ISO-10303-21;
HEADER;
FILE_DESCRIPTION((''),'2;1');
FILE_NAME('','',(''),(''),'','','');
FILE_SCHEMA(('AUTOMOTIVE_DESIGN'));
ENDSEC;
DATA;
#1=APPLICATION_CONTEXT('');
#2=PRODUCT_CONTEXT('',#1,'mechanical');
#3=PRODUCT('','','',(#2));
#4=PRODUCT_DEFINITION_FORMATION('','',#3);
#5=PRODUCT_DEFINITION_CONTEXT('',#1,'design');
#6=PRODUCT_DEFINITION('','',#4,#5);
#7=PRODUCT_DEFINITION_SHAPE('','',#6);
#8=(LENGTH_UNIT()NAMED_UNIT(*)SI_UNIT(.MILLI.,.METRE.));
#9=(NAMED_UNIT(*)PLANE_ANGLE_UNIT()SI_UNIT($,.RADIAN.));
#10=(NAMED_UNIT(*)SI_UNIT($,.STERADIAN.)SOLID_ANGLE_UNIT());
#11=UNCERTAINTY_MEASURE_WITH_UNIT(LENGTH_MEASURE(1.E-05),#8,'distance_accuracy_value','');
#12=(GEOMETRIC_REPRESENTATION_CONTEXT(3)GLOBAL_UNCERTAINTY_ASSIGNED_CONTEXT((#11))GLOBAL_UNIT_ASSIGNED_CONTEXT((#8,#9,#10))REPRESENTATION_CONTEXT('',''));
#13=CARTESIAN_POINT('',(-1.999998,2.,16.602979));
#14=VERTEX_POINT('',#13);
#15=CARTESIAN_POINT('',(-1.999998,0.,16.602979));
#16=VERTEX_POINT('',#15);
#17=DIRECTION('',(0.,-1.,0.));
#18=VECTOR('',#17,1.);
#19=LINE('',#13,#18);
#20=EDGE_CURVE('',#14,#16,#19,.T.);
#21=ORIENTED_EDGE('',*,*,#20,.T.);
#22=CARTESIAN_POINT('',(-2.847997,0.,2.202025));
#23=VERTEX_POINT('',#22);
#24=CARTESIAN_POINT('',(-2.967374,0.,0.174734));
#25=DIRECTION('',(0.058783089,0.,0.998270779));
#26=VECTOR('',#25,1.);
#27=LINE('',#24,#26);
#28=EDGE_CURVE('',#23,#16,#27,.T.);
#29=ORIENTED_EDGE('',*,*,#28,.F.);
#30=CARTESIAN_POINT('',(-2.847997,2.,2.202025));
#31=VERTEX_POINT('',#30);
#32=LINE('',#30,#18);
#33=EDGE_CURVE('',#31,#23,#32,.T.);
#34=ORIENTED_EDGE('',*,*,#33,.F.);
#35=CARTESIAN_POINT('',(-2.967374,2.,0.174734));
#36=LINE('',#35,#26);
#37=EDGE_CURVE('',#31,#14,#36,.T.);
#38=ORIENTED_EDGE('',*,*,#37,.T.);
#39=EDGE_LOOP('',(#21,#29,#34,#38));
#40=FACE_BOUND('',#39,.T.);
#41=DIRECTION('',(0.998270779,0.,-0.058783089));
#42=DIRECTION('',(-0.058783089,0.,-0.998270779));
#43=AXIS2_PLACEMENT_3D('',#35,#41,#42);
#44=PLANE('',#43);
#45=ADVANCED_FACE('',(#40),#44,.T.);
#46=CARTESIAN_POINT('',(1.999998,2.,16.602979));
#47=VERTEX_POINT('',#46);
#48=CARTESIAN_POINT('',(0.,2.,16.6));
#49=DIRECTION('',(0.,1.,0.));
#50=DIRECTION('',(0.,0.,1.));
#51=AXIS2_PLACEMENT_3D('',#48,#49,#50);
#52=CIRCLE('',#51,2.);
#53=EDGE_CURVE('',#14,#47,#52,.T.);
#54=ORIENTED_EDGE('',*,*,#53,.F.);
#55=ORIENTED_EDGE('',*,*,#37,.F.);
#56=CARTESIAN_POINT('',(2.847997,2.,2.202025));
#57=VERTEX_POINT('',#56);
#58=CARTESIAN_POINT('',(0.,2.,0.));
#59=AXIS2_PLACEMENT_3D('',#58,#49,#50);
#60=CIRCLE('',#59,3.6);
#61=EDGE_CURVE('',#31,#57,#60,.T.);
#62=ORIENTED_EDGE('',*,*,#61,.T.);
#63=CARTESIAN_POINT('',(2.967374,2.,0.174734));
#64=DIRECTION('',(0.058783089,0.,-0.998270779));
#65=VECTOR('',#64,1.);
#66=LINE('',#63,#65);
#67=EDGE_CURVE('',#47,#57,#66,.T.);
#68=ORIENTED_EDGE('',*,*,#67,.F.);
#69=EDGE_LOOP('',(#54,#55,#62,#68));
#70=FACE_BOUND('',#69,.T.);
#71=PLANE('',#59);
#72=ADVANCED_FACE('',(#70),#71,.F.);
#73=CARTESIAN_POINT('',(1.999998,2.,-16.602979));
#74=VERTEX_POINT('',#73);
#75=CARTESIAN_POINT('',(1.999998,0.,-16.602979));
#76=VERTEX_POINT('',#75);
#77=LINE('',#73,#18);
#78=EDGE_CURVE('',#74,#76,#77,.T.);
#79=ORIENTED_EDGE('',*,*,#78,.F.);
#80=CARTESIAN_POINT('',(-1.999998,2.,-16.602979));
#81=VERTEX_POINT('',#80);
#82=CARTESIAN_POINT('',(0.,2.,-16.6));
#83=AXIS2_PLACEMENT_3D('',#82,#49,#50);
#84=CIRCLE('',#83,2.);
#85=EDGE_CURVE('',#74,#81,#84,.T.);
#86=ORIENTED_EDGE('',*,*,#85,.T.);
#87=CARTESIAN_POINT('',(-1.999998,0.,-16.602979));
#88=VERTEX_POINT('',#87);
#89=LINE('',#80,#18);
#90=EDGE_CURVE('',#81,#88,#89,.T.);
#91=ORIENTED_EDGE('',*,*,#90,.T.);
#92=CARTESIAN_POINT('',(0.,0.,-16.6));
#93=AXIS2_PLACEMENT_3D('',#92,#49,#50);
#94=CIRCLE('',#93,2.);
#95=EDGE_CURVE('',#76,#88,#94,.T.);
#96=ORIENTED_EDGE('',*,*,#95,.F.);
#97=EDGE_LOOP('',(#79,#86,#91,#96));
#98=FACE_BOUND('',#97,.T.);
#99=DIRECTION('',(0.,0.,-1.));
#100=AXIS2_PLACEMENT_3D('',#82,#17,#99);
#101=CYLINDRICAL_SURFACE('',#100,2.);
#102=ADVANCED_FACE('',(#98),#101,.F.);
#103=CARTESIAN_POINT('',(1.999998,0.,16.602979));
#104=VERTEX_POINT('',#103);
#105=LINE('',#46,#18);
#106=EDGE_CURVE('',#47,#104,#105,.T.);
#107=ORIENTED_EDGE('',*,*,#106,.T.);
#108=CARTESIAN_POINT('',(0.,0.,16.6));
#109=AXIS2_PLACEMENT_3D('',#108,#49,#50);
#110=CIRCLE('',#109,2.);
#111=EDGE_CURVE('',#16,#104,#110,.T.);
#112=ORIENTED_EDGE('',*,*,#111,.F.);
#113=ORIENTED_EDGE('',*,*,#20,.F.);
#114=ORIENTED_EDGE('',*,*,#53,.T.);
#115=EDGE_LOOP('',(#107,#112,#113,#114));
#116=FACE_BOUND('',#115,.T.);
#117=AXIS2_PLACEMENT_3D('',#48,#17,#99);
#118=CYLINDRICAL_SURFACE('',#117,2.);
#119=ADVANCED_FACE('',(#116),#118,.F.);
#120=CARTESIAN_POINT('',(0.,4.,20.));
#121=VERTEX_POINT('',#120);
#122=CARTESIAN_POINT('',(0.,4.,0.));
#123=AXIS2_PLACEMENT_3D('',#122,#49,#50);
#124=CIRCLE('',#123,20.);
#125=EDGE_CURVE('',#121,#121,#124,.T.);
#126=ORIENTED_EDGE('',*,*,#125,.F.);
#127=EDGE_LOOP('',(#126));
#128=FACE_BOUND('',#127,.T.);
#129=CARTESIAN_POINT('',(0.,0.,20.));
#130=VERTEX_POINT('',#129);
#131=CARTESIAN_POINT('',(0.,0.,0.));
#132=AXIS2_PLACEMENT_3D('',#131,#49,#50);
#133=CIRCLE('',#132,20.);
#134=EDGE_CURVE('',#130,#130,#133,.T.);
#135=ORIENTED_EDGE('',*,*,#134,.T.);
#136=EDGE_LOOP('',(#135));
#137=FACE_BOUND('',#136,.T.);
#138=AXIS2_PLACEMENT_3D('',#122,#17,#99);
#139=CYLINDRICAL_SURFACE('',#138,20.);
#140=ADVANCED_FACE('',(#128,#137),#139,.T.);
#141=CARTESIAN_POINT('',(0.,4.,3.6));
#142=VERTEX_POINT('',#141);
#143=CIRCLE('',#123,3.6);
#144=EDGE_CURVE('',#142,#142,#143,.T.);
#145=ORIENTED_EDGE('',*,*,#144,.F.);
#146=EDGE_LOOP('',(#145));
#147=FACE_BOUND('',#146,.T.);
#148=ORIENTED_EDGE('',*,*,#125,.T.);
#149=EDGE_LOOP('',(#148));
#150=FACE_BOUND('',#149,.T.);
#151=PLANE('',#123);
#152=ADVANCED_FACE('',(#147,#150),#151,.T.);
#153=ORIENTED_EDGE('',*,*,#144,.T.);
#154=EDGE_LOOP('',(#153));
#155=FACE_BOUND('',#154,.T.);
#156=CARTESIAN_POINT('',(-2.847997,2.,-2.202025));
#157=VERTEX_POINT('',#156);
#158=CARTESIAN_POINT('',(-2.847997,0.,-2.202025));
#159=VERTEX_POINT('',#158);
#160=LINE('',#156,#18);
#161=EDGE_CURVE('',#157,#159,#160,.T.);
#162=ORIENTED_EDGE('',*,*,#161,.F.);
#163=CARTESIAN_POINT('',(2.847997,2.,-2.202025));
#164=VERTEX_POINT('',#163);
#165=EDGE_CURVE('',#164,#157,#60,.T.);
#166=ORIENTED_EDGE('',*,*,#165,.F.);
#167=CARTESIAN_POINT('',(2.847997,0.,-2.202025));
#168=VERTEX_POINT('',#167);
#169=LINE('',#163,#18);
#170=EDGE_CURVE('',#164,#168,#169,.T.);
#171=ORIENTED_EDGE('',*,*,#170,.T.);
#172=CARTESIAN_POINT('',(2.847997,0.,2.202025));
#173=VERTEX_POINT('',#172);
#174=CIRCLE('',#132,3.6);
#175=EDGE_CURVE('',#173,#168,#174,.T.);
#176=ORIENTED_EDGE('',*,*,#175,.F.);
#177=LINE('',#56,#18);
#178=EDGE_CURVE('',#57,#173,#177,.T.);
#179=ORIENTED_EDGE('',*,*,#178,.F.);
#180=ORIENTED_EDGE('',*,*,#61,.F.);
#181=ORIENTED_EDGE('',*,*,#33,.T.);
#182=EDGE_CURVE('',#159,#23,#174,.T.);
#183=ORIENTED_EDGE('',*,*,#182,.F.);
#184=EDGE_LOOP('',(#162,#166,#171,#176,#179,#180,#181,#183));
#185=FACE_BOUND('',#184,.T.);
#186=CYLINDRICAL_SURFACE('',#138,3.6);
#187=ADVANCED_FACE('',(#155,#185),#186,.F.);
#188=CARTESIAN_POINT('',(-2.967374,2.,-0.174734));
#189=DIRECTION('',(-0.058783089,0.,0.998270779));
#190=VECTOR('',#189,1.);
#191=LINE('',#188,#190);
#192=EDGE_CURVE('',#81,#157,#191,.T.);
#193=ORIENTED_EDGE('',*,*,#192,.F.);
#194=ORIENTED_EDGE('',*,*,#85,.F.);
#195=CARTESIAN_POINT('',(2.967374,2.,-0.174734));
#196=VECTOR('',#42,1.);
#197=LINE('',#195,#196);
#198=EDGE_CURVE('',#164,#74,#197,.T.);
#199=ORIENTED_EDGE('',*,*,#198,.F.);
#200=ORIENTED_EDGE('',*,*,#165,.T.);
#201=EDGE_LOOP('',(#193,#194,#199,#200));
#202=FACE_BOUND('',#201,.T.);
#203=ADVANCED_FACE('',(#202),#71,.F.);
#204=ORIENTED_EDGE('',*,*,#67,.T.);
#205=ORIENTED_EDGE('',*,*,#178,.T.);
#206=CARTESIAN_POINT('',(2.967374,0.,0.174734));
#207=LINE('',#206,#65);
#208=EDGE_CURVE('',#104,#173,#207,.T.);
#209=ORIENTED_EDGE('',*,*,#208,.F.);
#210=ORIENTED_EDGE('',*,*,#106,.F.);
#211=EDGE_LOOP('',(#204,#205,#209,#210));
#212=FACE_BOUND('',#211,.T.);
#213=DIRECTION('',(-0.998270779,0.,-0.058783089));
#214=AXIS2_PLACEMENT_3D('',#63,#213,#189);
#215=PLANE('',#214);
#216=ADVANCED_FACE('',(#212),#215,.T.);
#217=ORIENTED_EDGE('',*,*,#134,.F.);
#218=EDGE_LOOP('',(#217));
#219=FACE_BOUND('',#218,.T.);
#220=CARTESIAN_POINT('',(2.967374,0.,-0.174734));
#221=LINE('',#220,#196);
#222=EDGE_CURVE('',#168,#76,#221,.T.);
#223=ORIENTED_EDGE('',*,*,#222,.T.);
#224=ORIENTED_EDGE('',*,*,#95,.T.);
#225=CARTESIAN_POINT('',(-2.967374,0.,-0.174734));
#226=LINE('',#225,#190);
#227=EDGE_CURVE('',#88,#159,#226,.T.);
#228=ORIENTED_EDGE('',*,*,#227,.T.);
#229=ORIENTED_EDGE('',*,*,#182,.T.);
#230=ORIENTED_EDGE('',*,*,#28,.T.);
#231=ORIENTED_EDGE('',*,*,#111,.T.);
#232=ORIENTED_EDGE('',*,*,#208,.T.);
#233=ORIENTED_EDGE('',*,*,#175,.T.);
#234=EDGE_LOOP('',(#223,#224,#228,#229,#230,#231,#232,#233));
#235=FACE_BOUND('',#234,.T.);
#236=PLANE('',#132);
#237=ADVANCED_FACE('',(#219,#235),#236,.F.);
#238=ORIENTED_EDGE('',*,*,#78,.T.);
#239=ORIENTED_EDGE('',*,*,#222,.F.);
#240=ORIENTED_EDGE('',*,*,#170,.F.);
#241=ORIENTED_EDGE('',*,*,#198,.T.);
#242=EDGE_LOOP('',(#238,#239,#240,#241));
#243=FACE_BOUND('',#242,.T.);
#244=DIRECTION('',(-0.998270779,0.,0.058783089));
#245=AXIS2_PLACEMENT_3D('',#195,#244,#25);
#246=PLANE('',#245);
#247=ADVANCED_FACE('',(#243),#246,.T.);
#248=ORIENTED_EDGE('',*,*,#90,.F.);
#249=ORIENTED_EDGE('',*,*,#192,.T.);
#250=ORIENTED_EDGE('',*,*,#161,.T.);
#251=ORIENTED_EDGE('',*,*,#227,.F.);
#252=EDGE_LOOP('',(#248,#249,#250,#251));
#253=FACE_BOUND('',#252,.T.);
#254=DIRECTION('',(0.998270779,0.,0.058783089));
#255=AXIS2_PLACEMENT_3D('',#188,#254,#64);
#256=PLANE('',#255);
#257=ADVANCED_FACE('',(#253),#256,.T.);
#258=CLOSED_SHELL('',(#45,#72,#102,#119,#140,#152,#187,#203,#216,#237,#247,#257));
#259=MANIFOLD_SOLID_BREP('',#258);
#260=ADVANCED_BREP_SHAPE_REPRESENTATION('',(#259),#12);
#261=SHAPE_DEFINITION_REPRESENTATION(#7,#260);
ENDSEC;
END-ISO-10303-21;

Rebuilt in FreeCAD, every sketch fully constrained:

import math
import FreeCAD as App
import Part
import Sketcher

V = App.Vector
Q = App.Units.Quantity

doc = App.newDocument("Part")
body = doc.addObject("PartDesign::Body", "Body")

# Sketch on XZ plane
sketch1 = doc.addObject("Sketcher::SketchObject", "Sketch")
body.addObject(sketch1)
sketch1.AttachmentSupport = (doc.XZ_Plane, [""])
sketch1.MapMode = "FlatFace"
sketch1.addGeometry(Part.Circle(V(0, 0, 0), V(0, 0, 1), 20), False)
sketch1.addGeometry(Part.ArcOfCircle(Part.Circle(V(0, 0, 0), V(0, 0, 1), 3.6), math.radians(-37.710617), math.radians(0)), False)
sketch1.addGeometry(Part.ArcOfCircle(Part.Circle(V(0, 0, 0), V(0, 0, 1), 3.6), math.radians(0), math.radians(37.710617)), False)
sketch1.addGeometry(Part.ArcOfCircle(Part.Circle(V(0.000001, 0.000001, 0), V(0, 0, 1), 3.599998), math.radians(37.710616), math.radians(40.437986)), False)
sketch1.addGeometry(Part.ArcOfCircle(Part.Circle(V(0, 0, 0), V(0, 0, 1), 3.6), math.radians(40.437985), math.radians(139.562015)), False)
sketch1.addGeometry(Part.ArcOfCircle(Part.Circle(V(-0.000001, 0.000001, 0), V(0, 0, 1), 3.599998), math.radians(139.562014), math.radians(142.289384)), False)
sketch1.addGeometry(Part.ArcOfCircle(Part.Circle(V(0, 0, 0), V(0, 0, 1), 3.6), math.radians(142.289383), math.radians(217.710617)), False)
sketch1.addGeometry(Part.ArcOfCircle(Part.Circle(V(-0.000001, -0.000001, 0), V(0, 0, 1), 3.599998), math.radians(-142.289384), math.radians(-139.562014)), False)
sketch1.addGeometry(Part.ArcOfCircle(Part.Circle(V(0, 0, 0), V(0, 0, 1), 3.6), math.radians(-139.562015), math.radians(-40.437985)), False)
sketch1.addGeometry(Part.ArcOfCircle(Part.Circle(V(0.000001, -0.000001, 0), V(0, 0, 1), 3.599998), math.radians(-40.437986), math.radians(-37.710616)), False)
sketch1.addConstraint(Sketcher.Constraint("Tangent", 1, 2, 2, 1))
sketch1.addConstraint(Sketcher.Constraint("Tangent", 2, 2, 3, 1))
sketch1.addConstraint(Sketcher.Constraint("Tangent", 3, 2, 4, 1))
sketch1.addConstraint(Sketcher.Constraint("Tangent", 4, 2, 5, 1))
sketch1.addConstraint(Sketcher.Constraint("Tangent", 5, 2, 6, 1))
sketch1.addConstraint(Sketcher.Constraint("Tangent", 6, 2, 7, 1))
sketch1.addConstraint(Sketcher.Constraint("Tangent", 7, 2, 8, 1))
sketch1.addConstraint(Sketcher.Constraint("Tangent", 8, 2, 9, 1))
sketch1.addConstraint(Sketcher.Constraint("Tangent", 9, 2, 1, 1))
sketch1.addConstraint(Sketcher.Constraint("Coincident", 0, 3, -1, 1))
sketch1.addConstraint(Sketcher.Constraint("Coincident", 1, 3, -1, 1))
sketch1.addConstraint(Sketcher.Constraint("Coincident", 3, 3, -1, 1))
sketch1.addConstraint(Sketcher.Constraint("Coincident", 5, 3, -1, 1))
sketch1.addConstraint(Sketcher.Constraint("Coincident", 7, 3, -1, 1))
sketch1.addConstraint(Sketcher.Constraint("PointOnObject", 1, 2, -1))
sketch1.addConstraint(Sketcher.Constraint("Horizontal", 3, 2, 4, 2))
sketch1.addConstraint(Sketcher.Constraint("Horizontal", 2, 2, 5, 2))
sketch1.addConstraint(Sketcher.Constraint("Horizontal", 7, 2, 8, 2))
sketch1.addConstraint(Sketcher.Constraint("Horizontal", 6, 2, 9, 2))
sketch1.addConstraint(Sketcher.Constraint("Vertical", 5, 2, 6, 2))
sketch1.addConstraint(Sketcher.Constraint("Vertical", 4, 2, 7, 2))
sketch1.addConstraint(Sketcher.Constraint("Diameter", 0, Q("40 mm")))
sketch1.addConstraint(Sketcher.Constraint("Radius", 1, Q("3.6 mm")))
sketch1.addConstraint(Sketcher.Constraint("DistanceX", -1, 1, 3, 2, Q("2.73999 mm")))
sketch1.addConstraint(Sketcher.Constraint("DistanceX", -1, 1, 2, 2, Q("2.847997 mm")))
pad1 = doc.addObject("PartDesign::Pad", "Pad")
body.addObject(pad1)
pad1.Profile = sketch1
pad1.Length = 4
pad1.Reversed = True

# Sketch on XZ plane
sketch2 = doc.addObject("Sketcher::SketchObject", "Sketch001")
body.addObject(sketch2)
sketch2.AttachmentSupport = (doc.XZ_Plane, [""])
sketch2.MapMode = "FlatFace"
sketch2.addGeometry(Part.ArcOfCircle(Part.Circle(V(-0.000001, 0.000001, 0), V(0, 0, 1), 3.599998), math.radians(139.562014), math.radians(142.289384)), False)
sketch2.addGeometry(Part.LineSegment(V(-2.847997, 2.202025, 0), V(-1.999998, 16.602979, 0)), False)
sketch2.addGeometry(Part.ArcOfCircle(Part.Circle(V(0, 16.6, 0), V(0, 0, 1), 2), math.radians(0.085353), math.radians(179.914647)), False)
sketch2.addGeometry(Part.LineSegment(V(1.999998, 16.602979, 0), V(2.847997, 2.202025, 0)), False)
sketch2.addGeometry(Part.ArcOfCircle(Part.Circle(V(0.000001, 0.000001, 0), V(0, 0, 1), 3.599998), math.radians(37.710616), math.radians(40.437986)), False)
sketch2.addGeometry(Part.ArcOfCircle(Part.Circle(V(0, 0, 0), V(0, 0, 1), 3.6), math.radians(40.437985), math.radians(139.562015)), False)
sketch2.addGeometry(Part.ArcOfCircle(Part.Circle(V(0, 0, 0), V(0, 0, 1), 3.6), math.radians(-139.562015), math.radians(-40.437985)), False)
sketch2.addGeometry(Part.ArcOfCircle(Part.Circle(V(0.000001, -0.000001, 0), V(0, 0, 1), 3.599998), math.radians(-40.437986), math.radians(-37.710616)), False)
sketch2.addGeometry(Part.LineSegment(V(2.847997, -2.202025, 0), V(1.999998, -16.602979, 0)), False)
sketch2.addGeometry(Part.ArcOfCircle(Part.Circle(V(0, -16.6, 0), V(0, 0, 1), 2), math.radians(-179.914647), math.radians(-0.085353)), False)
sketch2.addGeometry(Part.LineSegment(V(-1.999998, -16.602979, 0), V(-2.847997, -2.202025, 0)), False)
sketch2.addGeometry(Part.ArcOfCircle(Part.Circle(V(-0.000001, -0.000001, 0), V(0, 0, 1), 3.599998), math.radians(-142.289384), math.radians(-139.562014)), False)
sketch2.addConstraint(Sketcher.Constraint("Coincident", 0, 2, 1, 1))
sketch2.addConstraint(Sketcher.Constraint("Coincident", 1, 2, 2, 2))
sketch2.addConstraint(Sketcher.Constraint("Coincident", 2, 1, 3, 1))
sketch2.addConstraint(Sketcher.Constraint("Coincident", 3, 2, 4, 1))
sketch2.addConstraint(Sketcher.Constraint("Tangent", 4, 2, 5, 1))
sketch2.addConstraint(Sketcher.Constraint("Tangent", 5, 2, 0, 1))
sketch2.addConstraint(Sketcher.Constraint("Tangent", 6, 2, 7, 1))
sketch2.addConstraint(Sketcher.Constraint("Coincident", 7, 2, 8, 1))
sketch2.addConstraint(Sketcher.Constraint("Coincident", 8, 2, 9, 2))
sketch2.addConstraint(Sketcher.Constraint("Coincident", 9, 1, 10, 1))
sketch2.addConstraint(Sketcher.Constraint("Coincident", 10, 2, 11, 1))
sketch2.addConstraint(Sketcher.Constraint("Tangent", 11, 2, 6, 1))
sketch2.addConstraint(Sketcher.Constraint("Coincident", 0, 3, -1, 1))
sketch2.addConstraint(Sketcher.Constraint("Coincident", 4, 3, -1, 1))
sketch2.addConstraint(Sketcher.Constraint("Coincident", 6, 3, -1, 1))
sketch2.addConstraint(Sketcher.Constraint("Equal", 5, 6))
sketch2.addConstraint(Sketcher.Constraint("Equal", 6, 7))
sketch2.addConstraint(Sketcher.Constraint("Equal", 2, 9))
sketch2.addConstraint(Sketcher.Constraint("Equal", 7, 11))
sketch2.addConstraint(Sketcher.Constraint("Symmetric", 2, 3, 9, 3, -1, 1))
sketch2.addConstraint(Sketcher.Constraint("Symmetric", 1, 2, 2, 1, -2))
sketch2.addConstraint(Sketcher.Constraint("Parallel", 1, 8))
sketch2.addConstraint(Sketcher.Constraint("Parallel", 3, 10))
sketch2.addConstraint(Sketcher.Constraint("Horizontal", 0, 2, 3, 2))
sketch2.addConstraint(Sketcher.Constraint("Horizontal", 4, 2, 5, 2))
sketch2.addConstraint(Sketcher.Constraint("Horizontal", 8, 2, 9, 1))
sketch2.addConstraint(Sketcher.Constraint("Horizontal", 6, 2, 11, 2))
sketch2.addConstraint(Sketcher.Constraint("Vertical", 4, 2, 6, 2))
sketch2.addConstraint(Sketcher.Constraint("Vertical", 3, 2, 7, 2))
sketch2.addConstraint(Sketcher.Constraint("Radius", 2, Q("2 mm")))
sketch2.addConstraint(Sketcher.Constraint("Radius", 0, Q("3.599998 mm")))
sketch2.addConstraint(Sketcher.Constraint("DistanceY", -1, 1, 2, 3, Q("16.6 mm")))
sketch2.addConstraint(Sketcher.Constraint("DistanceX", 0, 2, 4, 3, Q("2.847998 mm")))
sketch2.addConstraint(Sketcher.Constraint("Distance", 1, Q("14.4259 mm")))
sketch2.addConstraint(Sketcher.Constraint("DistanceX", -1, 1, 4, 2, Q("2.73999 mm")))
pocket1 = doc.addObject("PartDesign::Pocket", "Pocket")
body.addObject(pocket1)
pocket1.Profile = sketch2
pocket1.Length = 2

doc.recompute()
